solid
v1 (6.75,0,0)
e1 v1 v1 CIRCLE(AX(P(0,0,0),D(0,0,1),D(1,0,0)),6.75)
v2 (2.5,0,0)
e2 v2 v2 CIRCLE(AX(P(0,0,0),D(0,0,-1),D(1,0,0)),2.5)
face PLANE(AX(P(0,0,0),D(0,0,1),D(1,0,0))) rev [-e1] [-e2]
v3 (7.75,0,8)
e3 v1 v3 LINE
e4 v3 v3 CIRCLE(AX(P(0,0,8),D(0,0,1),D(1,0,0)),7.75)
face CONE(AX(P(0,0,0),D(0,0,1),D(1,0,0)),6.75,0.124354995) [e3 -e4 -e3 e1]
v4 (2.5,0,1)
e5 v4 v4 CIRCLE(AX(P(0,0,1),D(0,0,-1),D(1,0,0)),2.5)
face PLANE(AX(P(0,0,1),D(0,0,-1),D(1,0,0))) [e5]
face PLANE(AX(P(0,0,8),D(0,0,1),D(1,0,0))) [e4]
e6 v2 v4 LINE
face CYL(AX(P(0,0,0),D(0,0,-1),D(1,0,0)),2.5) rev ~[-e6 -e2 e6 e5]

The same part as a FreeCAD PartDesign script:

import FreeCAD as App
import Part
import Sketcher

doc = App.newDocument("Part")
body = doc.addObject("PartDesign::Body", "Body")

# Sketch on XZ plane
sketch1 = body.newObject("Sketcher::SketchObject", "Sketch")
sketch1.AttachmentSupport = (doc.getObject("XZ_Plane"), [""])
sketch1.MapMode = "FlatFace"
sketch1.addGeometry([
    Part.LineSegment(App.Vector(0, 0, 0), App.Vector(7, 0, 0)),
    Part.LineSegment(App.Vector(7, 0, 0), App.Vector(8, 8, 0)),
    Part.LineSegment(App.Vector(8, 8, 0), App.Vector(0, 8, 0)),
    Part.LineSegment(App.Vector(0, 8, 0), App.Vector(0, 0, 0)),
], False)
sketch1.addConstraint([
    Sketcher.Constraint("Coincident", 0, 2, 1, 1),
    Sketcher.Constraint("Coincident", 1, 2, 2, 1),
    Sketcher.Constraint("Coincident", 2, 2, 3, 1),
    Sketcher.Constraint("Coincident", 3, 2, 0, 1),
    Sketcher.Constraint("Horizontal", 0),
    Sketcher.Constraint("Horizontal", 2),
    Sketcher.Constraint("Vertical", 3),
    Sketcher.Constraint("Coincident", 3, 2, -1, 1),
    Sketcher.Constraint("DistanceY", 3, 2, 3, 1, 8.0),
    Sketcher.Constraint("DistanceX", 0, 2, 1, 2, 1.0),
    Sketcher.Constraint("DistanceX", 0, 1, 0, 2, 6.75),
])
revolution = body.newObject("PartDesign::Revolution", "Revolution")
revolution.Profile = sketch1
revolution.ReferenceAxis = (sketch1, ["V_Axis"])
revolution.Angle = 360

# Sketch on XY plane
sketch2 = body.newObject("Sketcher::SketchObject", "Sketch001")
sketch2.AttachmentSupport = (doc.getObject("XY_Plane"), [""])
sketch2.MapMode = "FlatFace"
sketch2.addGeometry(Part.Circle(App.Vector(0, 0, 0), App.Vector(0, 0, 1), 2.5), False)
sketch2.addConstraint([
    Sketcher.Constraint("Coincident", 0, 3, -1, 1),
    Sketcher.Constraint("Diameter", 0, 5.0),
])
pocket1 = body.newObject("PartDesign::Pocket", "Pocket")
pocket1.Profile = sketch2
pocket1.Length = 1
pocket1.Reversed = True

doc.recompute()
